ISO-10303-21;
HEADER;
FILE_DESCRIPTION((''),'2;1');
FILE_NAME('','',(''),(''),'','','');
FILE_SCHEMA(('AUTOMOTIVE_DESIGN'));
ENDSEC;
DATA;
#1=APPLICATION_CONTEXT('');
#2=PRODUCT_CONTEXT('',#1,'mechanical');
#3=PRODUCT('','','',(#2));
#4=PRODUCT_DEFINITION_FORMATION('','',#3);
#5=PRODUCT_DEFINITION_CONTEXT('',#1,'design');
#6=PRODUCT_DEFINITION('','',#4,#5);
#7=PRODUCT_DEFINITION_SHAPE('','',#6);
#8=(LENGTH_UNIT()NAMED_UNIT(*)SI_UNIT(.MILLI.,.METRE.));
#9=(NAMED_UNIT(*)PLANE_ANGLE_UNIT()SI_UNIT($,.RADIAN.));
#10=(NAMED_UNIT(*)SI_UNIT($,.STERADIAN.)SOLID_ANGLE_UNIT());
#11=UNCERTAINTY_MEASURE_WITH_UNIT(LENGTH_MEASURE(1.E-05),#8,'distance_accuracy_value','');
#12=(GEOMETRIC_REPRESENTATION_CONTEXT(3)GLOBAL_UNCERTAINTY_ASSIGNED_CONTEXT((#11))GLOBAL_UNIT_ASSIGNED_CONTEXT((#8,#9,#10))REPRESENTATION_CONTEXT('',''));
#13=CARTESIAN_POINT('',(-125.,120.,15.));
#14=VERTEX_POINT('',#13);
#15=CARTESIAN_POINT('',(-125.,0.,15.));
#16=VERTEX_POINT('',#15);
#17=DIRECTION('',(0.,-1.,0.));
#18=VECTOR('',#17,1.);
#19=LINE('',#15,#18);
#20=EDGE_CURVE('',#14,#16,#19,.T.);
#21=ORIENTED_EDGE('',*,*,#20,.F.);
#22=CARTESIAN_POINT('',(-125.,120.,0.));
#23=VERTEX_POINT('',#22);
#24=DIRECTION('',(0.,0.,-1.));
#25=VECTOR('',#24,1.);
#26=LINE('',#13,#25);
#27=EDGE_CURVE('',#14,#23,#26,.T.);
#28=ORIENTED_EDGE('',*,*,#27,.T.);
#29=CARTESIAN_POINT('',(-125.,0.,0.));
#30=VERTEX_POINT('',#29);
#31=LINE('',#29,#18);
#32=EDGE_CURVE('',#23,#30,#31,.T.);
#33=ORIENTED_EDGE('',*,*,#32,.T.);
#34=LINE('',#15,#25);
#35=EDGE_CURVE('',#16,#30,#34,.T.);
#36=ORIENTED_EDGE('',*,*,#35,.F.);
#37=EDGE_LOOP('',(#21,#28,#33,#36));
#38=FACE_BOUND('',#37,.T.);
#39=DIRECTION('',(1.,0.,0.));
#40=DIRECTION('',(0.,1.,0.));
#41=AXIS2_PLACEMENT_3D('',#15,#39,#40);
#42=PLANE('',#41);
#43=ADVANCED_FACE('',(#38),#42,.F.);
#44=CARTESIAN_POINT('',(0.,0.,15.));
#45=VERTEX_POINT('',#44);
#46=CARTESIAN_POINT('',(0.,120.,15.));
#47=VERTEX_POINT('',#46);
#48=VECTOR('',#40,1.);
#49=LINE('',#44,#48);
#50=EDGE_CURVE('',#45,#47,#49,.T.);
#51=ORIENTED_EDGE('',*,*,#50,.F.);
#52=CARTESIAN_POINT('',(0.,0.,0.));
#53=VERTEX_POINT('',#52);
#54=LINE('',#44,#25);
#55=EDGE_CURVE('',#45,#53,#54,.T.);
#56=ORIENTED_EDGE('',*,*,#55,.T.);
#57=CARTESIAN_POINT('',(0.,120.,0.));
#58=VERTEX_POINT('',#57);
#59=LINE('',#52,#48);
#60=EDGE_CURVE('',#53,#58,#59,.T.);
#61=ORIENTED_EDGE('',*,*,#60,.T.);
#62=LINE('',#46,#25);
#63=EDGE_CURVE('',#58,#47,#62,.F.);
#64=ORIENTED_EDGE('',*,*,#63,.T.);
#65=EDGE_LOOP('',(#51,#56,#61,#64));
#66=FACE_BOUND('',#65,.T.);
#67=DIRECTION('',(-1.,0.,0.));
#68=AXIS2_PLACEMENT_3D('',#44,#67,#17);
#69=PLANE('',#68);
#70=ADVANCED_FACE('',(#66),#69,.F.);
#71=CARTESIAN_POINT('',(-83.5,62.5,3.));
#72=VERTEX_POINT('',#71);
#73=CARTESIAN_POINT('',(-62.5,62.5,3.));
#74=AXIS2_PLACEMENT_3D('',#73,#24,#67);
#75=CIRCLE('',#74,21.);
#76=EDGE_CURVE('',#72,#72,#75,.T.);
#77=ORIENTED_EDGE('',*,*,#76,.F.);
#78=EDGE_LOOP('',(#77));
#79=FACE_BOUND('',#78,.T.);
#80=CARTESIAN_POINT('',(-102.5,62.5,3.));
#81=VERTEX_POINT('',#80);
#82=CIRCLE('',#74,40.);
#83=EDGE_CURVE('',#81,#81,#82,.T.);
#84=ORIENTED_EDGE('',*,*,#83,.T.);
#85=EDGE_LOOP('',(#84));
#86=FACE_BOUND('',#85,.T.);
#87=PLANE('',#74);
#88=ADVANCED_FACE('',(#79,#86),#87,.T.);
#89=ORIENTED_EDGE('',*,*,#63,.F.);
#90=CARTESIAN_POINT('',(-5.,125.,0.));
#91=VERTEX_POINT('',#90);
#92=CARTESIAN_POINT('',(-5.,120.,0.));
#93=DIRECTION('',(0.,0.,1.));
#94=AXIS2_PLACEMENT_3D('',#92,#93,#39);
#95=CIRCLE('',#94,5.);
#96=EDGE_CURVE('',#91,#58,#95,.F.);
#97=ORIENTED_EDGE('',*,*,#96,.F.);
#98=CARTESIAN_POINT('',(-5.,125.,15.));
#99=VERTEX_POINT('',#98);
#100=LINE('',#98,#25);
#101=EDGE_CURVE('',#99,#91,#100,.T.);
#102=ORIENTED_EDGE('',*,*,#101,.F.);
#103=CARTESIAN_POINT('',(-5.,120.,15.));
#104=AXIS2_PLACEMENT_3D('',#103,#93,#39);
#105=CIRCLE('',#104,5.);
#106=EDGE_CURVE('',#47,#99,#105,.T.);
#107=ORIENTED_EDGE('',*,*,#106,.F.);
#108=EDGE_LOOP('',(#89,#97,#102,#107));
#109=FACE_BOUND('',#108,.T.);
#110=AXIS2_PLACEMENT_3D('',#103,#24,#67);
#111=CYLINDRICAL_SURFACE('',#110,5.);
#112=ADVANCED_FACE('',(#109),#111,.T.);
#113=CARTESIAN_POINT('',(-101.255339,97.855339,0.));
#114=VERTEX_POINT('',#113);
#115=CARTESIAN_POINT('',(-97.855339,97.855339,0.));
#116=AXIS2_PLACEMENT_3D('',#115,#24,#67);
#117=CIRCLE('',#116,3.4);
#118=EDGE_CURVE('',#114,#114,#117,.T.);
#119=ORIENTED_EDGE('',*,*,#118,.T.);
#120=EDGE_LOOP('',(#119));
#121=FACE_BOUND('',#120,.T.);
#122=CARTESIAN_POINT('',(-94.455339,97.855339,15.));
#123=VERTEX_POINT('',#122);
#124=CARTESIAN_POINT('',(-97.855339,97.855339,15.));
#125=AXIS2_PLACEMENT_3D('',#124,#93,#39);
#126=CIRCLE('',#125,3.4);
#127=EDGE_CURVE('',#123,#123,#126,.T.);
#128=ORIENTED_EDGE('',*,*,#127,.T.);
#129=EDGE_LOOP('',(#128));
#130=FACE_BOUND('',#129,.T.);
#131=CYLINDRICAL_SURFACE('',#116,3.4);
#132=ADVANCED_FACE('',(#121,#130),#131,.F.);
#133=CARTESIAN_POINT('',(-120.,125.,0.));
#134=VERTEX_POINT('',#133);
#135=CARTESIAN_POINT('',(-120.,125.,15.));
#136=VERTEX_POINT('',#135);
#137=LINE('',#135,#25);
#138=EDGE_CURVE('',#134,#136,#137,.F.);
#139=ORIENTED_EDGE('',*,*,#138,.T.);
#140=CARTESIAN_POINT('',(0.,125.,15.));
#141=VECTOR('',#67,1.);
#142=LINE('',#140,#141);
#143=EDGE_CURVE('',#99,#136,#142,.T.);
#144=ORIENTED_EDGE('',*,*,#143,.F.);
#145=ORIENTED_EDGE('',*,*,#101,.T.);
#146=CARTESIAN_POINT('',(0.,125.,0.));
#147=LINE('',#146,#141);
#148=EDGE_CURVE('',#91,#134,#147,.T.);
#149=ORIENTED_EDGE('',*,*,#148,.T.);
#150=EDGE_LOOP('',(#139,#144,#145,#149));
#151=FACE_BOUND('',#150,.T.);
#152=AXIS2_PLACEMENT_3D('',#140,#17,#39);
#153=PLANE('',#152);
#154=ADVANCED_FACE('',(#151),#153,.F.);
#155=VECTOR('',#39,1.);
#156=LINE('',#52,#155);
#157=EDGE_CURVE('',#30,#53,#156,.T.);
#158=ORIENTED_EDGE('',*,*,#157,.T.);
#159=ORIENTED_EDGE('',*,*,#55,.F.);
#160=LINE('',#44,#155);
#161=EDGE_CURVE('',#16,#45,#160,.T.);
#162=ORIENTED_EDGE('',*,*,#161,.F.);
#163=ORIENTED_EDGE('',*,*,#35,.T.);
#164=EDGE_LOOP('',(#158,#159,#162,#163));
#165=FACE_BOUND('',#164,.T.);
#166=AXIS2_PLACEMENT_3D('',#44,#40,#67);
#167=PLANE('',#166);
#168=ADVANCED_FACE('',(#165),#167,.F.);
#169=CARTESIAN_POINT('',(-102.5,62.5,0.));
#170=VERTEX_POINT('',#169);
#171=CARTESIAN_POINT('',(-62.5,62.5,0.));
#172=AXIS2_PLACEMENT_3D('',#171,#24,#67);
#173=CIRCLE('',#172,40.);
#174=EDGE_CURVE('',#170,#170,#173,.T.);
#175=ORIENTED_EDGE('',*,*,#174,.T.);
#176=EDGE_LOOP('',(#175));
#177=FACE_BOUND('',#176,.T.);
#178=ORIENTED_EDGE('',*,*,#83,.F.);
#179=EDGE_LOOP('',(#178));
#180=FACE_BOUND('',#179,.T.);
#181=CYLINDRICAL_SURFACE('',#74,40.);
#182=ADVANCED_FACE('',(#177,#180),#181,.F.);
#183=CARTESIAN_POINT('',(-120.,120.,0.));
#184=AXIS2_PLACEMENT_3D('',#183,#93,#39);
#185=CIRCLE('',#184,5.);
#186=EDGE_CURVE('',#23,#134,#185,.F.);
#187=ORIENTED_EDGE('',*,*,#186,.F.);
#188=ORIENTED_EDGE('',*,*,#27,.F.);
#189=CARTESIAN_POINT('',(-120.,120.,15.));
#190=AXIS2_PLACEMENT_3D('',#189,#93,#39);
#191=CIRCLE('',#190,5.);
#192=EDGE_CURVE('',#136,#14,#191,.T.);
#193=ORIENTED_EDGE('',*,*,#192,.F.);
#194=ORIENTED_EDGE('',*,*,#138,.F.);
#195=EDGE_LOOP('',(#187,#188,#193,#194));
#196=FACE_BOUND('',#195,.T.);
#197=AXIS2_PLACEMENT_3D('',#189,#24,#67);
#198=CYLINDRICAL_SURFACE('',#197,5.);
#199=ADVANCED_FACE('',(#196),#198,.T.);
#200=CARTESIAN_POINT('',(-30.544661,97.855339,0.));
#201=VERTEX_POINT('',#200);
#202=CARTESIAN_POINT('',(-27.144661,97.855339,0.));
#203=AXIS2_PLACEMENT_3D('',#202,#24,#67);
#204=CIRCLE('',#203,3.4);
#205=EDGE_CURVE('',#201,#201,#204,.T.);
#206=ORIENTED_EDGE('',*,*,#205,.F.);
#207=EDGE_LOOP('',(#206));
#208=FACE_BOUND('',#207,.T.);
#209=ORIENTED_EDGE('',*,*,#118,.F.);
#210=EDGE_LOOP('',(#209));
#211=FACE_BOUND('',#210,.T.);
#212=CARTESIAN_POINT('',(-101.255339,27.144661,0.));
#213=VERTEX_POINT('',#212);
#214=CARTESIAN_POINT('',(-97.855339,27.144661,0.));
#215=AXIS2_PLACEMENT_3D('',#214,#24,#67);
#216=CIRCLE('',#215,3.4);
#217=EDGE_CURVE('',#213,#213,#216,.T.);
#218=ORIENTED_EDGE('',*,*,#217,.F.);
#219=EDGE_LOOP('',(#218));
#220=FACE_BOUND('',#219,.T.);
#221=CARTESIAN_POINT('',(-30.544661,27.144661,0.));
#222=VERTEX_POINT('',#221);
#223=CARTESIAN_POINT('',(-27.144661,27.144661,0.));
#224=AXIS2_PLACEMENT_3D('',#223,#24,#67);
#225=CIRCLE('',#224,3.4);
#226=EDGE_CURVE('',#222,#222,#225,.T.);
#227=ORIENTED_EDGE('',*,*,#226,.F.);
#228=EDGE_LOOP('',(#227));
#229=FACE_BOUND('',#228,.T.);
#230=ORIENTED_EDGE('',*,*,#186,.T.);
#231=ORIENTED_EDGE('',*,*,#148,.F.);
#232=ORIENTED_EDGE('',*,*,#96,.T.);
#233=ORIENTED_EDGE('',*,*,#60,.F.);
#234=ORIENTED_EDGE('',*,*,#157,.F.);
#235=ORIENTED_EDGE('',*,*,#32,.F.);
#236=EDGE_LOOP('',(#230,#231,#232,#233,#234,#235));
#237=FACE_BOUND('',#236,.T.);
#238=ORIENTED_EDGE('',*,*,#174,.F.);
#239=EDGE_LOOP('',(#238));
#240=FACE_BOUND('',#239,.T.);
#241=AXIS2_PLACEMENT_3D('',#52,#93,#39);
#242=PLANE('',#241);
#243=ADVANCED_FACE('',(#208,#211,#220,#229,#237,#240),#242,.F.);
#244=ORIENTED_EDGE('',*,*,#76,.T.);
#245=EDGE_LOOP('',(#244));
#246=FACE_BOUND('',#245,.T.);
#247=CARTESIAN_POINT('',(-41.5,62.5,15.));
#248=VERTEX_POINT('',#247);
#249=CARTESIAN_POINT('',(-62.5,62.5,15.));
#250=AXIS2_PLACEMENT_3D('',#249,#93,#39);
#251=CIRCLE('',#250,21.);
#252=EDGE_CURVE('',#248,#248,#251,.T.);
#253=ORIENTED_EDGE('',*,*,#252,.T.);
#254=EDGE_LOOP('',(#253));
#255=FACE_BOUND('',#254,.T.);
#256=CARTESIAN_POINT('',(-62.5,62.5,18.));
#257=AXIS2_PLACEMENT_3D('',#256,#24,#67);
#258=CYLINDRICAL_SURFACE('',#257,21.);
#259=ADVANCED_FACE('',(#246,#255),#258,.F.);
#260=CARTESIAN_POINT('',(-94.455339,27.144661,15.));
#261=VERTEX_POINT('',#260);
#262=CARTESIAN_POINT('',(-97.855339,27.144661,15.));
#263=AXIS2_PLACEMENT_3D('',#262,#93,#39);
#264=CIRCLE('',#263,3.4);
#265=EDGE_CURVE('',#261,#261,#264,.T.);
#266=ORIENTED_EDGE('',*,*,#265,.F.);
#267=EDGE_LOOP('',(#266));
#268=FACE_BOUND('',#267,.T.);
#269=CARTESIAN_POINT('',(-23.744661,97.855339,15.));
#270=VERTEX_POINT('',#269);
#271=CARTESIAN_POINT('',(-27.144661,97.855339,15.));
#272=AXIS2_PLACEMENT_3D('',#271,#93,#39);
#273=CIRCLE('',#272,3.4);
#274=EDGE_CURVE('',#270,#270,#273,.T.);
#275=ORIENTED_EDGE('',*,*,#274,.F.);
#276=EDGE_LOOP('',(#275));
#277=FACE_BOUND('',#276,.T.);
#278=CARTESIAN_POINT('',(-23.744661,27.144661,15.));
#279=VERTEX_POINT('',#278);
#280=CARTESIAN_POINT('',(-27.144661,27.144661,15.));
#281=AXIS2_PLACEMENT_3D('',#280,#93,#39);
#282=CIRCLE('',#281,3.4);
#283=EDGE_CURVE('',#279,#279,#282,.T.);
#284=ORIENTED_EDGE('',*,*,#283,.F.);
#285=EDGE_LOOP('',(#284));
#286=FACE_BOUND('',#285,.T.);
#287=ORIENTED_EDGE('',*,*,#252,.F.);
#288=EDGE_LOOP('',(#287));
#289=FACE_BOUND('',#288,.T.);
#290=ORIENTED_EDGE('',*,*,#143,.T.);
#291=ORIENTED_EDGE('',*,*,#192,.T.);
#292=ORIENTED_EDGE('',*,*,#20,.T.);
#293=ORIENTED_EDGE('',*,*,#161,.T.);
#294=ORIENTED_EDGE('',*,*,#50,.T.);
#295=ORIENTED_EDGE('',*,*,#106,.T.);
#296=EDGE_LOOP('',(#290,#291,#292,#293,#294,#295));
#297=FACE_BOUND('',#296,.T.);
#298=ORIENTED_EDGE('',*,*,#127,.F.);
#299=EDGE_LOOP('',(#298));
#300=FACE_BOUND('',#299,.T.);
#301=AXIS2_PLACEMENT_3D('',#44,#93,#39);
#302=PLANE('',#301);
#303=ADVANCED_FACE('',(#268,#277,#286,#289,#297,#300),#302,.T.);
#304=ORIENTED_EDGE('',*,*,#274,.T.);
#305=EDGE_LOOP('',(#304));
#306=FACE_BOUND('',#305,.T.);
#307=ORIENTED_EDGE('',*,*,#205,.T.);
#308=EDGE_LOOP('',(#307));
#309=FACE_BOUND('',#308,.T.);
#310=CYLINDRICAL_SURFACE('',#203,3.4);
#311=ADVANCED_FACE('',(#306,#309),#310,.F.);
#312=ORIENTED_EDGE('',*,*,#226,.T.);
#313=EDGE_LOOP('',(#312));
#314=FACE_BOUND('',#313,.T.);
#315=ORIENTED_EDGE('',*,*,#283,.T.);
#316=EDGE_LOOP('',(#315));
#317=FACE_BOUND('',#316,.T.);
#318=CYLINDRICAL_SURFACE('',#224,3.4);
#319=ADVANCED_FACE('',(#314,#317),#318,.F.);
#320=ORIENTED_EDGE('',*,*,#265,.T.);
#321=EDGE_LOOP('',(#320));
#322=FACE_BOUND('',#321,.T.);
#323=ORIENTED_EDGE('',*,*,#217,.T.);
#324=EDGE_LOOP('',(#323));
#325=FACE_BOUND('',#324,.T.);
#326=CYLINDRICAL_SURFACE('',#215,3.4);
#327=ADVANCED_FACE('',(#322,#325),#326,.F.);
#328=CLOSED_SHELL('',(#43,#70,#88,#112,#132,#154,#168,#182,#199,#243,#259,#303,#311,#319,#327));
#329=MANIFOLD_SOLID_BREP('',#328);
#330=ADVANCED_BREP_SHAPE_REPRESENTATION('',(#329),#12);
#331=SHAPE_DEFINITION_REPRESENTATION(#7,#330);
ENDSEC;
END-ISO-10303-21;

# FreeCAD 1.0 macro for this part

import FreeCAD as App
import Part
import Sketcher
Q = App.Units.Quantity


def edges_at(feature, points):
    """Names of the edges that pass closest to the given points."""
    edges = feature.Shape.Edges
    near = lambda p: min(range(len(edges)), key=lambda i: edges[i].distToShape(Part.Vertex(*p))[0])
    return sorted({f"Edge{near(p) + 1}" for p in points})

doc = App.newDocument("Part")
body = doc.addObject("PartDesign::Body", "Body")

sketch1 = body.newObject("Sketcher::SketchObject", "Sketch")
sketch1.AttachmentSupport = (doc.getObject("XY_Plane"), [""])
sketch1.MapMode = "FlatFace"
sketch1.addGeometry(Part.LineSegment(App.Vector(-125, 125, 0), App.Vector(-125, 0, 0)), False)
sketch1.addGeometry(Part.LineSegment(App.Vector(-125, 0, 0), App.Vector(0, 0, 0)), False)
sketch1.addGeometry(Part.LineSegment(App.Vector(0, 0, 0), App.Vector(0, 125, 0)), False)
sketch1.addGeometry(Part.LineSegment(App.Vector(0, 125, 0), App.Vector(-125, 125, 0)), False)
sketch1.addConstraint(Sketcher.Constraint("Coincident", 0, 2, 1, 1))
sketch1.addConstraint(Sketcher.Constraint("Coincident", 1, 2, 2, 1))
sketch1.addConstraint(Sketcher.Constraint("Coincident", 2, 2, 3, 1))
sketch1.addConstraint(Sketcher.Constraint("Coincident", 3, 2, 0, 1))
sketch1.addConstraint(Sketcher.Constraint("Vertical", 0))
sketch1.addConstraint(Sketcher.Constraint("Horizontal", 1))
sketch1.addConstraint(Sketcher.Constraint("Vertical", 2))
sketch1.addConstraint(Sketcher.Constraint("Horizontal", 3))
sketch1.addConstraint(Sketcher.Constraint("Coincident", 1, 2, -1, 1))
sketch1.addConstraint(Sketcher.Constraint("Equal", 3, 0))
sketch1.addConstraint(Sketcher.Constraint("DistanceX", 1, 1, 1, 2, Q("125 mm")))
pad1 = body.newObject("PartDesign::Pad", "Pad")
pad1.Profile = sketch1
pad1.Length = 15

sketch2 = body.newObject("Sketcher::SketchObject", "Sketch001")
sketch2.AttachmentSupport = (doc.getObject("XY_Plane"), [""])
sketch2.MapMode = "FlatFace"
sketch2.addGeometry(Part.Circle(App.Vector(-62, 62, 0), App.Vector(0, 0, 1), 40), False)
sketch2.addConstraint(Sketcher.Constraint("Diameter", 0, Q("80 mm")))
sketch2.addConstraint(Sketcher.Constraint("DistanceX", 0, 3, -1, 1, Q("62.5 mm")))
sketch2.addConstraint(Sketcher.Constraint("DistanceY", -1, 1, 0, 3, Q("62.5 mm")))
pocket1 = body.newObject("PartDesign::Pocket", "Pocket")
pocket1.Profile = sketch2
pocket1.Length = 3
pocket1.Reversed = True
doc.recompute()

fillet = body.newObject("PartDesign::Fillet", "Fillet")
fillet.Base = (pocket1, edges_at(pocket1, [(-125, 125, 7.5), (0, 125, 7.5)]))
fillet.Radius = 5

sketch3 = body.newObject("Sketcher::SketchObject", "Sketch002")
sketch3.AttachmentSupport = (doc.getObject("XY_Plane"), [""])
sketch3.MapMode = "FlatFace"
sketch3.AttachmentOffset = App.Placement(App.Vector(0, 0, 3), App.Rotation())
sketch3.addGeometry(Part.Circle(App.Vector(-62, 62, 0), App.Vector(0, 0, 1), 21), False)
sketch3.addConstraint(Sketcher.Constraint("Diameter", 0, Q("42 mm")))
sketch3.addConstraint(Sketcher.Constraint("DistanceX", 0, 3, -1, 1, Q("62.5 mm")))
sketch3.addConstraint(Sketcher.Constraint("DistanceY", -1, 1, 0, 3, Q("62.5 mm")))
pocket2 = body.newObject("PartDesign::Pocket", "Pocket001")
pocket2.Profile = sketch3
pocket2.Length = 15
pocket2.Reversed = True

sketch4 = body.newObject("Sketcher::SketchObject", "Sketch003")
sketch4.AttachmentSupport = (doc.getObject("XY_Plane"), [""])
sketch4.MapMode = "FlatFace"
sketch4.addGeometry(Part.Circle(App.Vector(-97.9, 97.9, 0), App.Vector(0, 0, 1), 3.4), False)
sketch4.addGeometry(Part.Circle(App.Vector(-27.1, 97.9, 0), App.Vector(0, 0, 1), 3.4), False)
sketch4.addGeometry(Part.Circle(App.Vector(-27.1, 27.1, 0), App.Vector(0, 0, 1), 3.4), False)
sketch4.addGeometry(Part.Circle(App.Vector(-97.9, 27.1, 0), App.Vector(0, 0, 1), 3.4), False)
sketch4.addConstraint(Sketcher.Constraint("Equal", 0, 1))
sketch4.addConstraint(Sketcher.Constraint("Equal", 1, 2))
sketch4.addConstraint(Sketcher.Constraint("Equal", 2, 3))
sketch4.addConstraint(Sketcher.Constraint("Horizontal", 0, 3, 1, 3))
sketch4.addConstraint(Sketcher.Constraint("Horizontal", 2, 3, 3, 3))
sketch4.addConstraint(Sketcher.Constraint("Vertical", 1, 3, 2, 3))
sketch4.addConstraint(Sketcher.Constraint("Vertical", 0, 3, 3, 3))
sketch4.addConstraint(Sketcher.Constraint("Diameter", 0, Q("6.8 mm")))
sketch4.addConstraint(Sketcher.Constraint("DistanceX", 0, 3, -1, 1, Q("97.855339 mm")))
sketch4.addConstraint(Sketcher.Constraint("DistanceY", -1, 1, 0, 3, Q("97.855339 mm")))
sketch4.addConstraint(Sketcher.Constraint("DistanceX", 1, 3, -1, 1, Q("27.144661 mm")))
sketch4.addConstraint(Sketcher.Constraint("DistanceY", -1, 1, 2, 3, Q("27.144661 mm")))
doc.recompute()
hole = body.newObject("PartDesign::Hole", "Hole")
hole.Profile = sketch4
hole.ThreadType = "None"
hole.Diameter = 6.8
hole.DepthType = "Dimension"
hole.Depth = 22.25
hole.DrillPoint = "Angled"
hole.DrillPointAngle = 118
hole.Reversed = True

doc.recompute()
